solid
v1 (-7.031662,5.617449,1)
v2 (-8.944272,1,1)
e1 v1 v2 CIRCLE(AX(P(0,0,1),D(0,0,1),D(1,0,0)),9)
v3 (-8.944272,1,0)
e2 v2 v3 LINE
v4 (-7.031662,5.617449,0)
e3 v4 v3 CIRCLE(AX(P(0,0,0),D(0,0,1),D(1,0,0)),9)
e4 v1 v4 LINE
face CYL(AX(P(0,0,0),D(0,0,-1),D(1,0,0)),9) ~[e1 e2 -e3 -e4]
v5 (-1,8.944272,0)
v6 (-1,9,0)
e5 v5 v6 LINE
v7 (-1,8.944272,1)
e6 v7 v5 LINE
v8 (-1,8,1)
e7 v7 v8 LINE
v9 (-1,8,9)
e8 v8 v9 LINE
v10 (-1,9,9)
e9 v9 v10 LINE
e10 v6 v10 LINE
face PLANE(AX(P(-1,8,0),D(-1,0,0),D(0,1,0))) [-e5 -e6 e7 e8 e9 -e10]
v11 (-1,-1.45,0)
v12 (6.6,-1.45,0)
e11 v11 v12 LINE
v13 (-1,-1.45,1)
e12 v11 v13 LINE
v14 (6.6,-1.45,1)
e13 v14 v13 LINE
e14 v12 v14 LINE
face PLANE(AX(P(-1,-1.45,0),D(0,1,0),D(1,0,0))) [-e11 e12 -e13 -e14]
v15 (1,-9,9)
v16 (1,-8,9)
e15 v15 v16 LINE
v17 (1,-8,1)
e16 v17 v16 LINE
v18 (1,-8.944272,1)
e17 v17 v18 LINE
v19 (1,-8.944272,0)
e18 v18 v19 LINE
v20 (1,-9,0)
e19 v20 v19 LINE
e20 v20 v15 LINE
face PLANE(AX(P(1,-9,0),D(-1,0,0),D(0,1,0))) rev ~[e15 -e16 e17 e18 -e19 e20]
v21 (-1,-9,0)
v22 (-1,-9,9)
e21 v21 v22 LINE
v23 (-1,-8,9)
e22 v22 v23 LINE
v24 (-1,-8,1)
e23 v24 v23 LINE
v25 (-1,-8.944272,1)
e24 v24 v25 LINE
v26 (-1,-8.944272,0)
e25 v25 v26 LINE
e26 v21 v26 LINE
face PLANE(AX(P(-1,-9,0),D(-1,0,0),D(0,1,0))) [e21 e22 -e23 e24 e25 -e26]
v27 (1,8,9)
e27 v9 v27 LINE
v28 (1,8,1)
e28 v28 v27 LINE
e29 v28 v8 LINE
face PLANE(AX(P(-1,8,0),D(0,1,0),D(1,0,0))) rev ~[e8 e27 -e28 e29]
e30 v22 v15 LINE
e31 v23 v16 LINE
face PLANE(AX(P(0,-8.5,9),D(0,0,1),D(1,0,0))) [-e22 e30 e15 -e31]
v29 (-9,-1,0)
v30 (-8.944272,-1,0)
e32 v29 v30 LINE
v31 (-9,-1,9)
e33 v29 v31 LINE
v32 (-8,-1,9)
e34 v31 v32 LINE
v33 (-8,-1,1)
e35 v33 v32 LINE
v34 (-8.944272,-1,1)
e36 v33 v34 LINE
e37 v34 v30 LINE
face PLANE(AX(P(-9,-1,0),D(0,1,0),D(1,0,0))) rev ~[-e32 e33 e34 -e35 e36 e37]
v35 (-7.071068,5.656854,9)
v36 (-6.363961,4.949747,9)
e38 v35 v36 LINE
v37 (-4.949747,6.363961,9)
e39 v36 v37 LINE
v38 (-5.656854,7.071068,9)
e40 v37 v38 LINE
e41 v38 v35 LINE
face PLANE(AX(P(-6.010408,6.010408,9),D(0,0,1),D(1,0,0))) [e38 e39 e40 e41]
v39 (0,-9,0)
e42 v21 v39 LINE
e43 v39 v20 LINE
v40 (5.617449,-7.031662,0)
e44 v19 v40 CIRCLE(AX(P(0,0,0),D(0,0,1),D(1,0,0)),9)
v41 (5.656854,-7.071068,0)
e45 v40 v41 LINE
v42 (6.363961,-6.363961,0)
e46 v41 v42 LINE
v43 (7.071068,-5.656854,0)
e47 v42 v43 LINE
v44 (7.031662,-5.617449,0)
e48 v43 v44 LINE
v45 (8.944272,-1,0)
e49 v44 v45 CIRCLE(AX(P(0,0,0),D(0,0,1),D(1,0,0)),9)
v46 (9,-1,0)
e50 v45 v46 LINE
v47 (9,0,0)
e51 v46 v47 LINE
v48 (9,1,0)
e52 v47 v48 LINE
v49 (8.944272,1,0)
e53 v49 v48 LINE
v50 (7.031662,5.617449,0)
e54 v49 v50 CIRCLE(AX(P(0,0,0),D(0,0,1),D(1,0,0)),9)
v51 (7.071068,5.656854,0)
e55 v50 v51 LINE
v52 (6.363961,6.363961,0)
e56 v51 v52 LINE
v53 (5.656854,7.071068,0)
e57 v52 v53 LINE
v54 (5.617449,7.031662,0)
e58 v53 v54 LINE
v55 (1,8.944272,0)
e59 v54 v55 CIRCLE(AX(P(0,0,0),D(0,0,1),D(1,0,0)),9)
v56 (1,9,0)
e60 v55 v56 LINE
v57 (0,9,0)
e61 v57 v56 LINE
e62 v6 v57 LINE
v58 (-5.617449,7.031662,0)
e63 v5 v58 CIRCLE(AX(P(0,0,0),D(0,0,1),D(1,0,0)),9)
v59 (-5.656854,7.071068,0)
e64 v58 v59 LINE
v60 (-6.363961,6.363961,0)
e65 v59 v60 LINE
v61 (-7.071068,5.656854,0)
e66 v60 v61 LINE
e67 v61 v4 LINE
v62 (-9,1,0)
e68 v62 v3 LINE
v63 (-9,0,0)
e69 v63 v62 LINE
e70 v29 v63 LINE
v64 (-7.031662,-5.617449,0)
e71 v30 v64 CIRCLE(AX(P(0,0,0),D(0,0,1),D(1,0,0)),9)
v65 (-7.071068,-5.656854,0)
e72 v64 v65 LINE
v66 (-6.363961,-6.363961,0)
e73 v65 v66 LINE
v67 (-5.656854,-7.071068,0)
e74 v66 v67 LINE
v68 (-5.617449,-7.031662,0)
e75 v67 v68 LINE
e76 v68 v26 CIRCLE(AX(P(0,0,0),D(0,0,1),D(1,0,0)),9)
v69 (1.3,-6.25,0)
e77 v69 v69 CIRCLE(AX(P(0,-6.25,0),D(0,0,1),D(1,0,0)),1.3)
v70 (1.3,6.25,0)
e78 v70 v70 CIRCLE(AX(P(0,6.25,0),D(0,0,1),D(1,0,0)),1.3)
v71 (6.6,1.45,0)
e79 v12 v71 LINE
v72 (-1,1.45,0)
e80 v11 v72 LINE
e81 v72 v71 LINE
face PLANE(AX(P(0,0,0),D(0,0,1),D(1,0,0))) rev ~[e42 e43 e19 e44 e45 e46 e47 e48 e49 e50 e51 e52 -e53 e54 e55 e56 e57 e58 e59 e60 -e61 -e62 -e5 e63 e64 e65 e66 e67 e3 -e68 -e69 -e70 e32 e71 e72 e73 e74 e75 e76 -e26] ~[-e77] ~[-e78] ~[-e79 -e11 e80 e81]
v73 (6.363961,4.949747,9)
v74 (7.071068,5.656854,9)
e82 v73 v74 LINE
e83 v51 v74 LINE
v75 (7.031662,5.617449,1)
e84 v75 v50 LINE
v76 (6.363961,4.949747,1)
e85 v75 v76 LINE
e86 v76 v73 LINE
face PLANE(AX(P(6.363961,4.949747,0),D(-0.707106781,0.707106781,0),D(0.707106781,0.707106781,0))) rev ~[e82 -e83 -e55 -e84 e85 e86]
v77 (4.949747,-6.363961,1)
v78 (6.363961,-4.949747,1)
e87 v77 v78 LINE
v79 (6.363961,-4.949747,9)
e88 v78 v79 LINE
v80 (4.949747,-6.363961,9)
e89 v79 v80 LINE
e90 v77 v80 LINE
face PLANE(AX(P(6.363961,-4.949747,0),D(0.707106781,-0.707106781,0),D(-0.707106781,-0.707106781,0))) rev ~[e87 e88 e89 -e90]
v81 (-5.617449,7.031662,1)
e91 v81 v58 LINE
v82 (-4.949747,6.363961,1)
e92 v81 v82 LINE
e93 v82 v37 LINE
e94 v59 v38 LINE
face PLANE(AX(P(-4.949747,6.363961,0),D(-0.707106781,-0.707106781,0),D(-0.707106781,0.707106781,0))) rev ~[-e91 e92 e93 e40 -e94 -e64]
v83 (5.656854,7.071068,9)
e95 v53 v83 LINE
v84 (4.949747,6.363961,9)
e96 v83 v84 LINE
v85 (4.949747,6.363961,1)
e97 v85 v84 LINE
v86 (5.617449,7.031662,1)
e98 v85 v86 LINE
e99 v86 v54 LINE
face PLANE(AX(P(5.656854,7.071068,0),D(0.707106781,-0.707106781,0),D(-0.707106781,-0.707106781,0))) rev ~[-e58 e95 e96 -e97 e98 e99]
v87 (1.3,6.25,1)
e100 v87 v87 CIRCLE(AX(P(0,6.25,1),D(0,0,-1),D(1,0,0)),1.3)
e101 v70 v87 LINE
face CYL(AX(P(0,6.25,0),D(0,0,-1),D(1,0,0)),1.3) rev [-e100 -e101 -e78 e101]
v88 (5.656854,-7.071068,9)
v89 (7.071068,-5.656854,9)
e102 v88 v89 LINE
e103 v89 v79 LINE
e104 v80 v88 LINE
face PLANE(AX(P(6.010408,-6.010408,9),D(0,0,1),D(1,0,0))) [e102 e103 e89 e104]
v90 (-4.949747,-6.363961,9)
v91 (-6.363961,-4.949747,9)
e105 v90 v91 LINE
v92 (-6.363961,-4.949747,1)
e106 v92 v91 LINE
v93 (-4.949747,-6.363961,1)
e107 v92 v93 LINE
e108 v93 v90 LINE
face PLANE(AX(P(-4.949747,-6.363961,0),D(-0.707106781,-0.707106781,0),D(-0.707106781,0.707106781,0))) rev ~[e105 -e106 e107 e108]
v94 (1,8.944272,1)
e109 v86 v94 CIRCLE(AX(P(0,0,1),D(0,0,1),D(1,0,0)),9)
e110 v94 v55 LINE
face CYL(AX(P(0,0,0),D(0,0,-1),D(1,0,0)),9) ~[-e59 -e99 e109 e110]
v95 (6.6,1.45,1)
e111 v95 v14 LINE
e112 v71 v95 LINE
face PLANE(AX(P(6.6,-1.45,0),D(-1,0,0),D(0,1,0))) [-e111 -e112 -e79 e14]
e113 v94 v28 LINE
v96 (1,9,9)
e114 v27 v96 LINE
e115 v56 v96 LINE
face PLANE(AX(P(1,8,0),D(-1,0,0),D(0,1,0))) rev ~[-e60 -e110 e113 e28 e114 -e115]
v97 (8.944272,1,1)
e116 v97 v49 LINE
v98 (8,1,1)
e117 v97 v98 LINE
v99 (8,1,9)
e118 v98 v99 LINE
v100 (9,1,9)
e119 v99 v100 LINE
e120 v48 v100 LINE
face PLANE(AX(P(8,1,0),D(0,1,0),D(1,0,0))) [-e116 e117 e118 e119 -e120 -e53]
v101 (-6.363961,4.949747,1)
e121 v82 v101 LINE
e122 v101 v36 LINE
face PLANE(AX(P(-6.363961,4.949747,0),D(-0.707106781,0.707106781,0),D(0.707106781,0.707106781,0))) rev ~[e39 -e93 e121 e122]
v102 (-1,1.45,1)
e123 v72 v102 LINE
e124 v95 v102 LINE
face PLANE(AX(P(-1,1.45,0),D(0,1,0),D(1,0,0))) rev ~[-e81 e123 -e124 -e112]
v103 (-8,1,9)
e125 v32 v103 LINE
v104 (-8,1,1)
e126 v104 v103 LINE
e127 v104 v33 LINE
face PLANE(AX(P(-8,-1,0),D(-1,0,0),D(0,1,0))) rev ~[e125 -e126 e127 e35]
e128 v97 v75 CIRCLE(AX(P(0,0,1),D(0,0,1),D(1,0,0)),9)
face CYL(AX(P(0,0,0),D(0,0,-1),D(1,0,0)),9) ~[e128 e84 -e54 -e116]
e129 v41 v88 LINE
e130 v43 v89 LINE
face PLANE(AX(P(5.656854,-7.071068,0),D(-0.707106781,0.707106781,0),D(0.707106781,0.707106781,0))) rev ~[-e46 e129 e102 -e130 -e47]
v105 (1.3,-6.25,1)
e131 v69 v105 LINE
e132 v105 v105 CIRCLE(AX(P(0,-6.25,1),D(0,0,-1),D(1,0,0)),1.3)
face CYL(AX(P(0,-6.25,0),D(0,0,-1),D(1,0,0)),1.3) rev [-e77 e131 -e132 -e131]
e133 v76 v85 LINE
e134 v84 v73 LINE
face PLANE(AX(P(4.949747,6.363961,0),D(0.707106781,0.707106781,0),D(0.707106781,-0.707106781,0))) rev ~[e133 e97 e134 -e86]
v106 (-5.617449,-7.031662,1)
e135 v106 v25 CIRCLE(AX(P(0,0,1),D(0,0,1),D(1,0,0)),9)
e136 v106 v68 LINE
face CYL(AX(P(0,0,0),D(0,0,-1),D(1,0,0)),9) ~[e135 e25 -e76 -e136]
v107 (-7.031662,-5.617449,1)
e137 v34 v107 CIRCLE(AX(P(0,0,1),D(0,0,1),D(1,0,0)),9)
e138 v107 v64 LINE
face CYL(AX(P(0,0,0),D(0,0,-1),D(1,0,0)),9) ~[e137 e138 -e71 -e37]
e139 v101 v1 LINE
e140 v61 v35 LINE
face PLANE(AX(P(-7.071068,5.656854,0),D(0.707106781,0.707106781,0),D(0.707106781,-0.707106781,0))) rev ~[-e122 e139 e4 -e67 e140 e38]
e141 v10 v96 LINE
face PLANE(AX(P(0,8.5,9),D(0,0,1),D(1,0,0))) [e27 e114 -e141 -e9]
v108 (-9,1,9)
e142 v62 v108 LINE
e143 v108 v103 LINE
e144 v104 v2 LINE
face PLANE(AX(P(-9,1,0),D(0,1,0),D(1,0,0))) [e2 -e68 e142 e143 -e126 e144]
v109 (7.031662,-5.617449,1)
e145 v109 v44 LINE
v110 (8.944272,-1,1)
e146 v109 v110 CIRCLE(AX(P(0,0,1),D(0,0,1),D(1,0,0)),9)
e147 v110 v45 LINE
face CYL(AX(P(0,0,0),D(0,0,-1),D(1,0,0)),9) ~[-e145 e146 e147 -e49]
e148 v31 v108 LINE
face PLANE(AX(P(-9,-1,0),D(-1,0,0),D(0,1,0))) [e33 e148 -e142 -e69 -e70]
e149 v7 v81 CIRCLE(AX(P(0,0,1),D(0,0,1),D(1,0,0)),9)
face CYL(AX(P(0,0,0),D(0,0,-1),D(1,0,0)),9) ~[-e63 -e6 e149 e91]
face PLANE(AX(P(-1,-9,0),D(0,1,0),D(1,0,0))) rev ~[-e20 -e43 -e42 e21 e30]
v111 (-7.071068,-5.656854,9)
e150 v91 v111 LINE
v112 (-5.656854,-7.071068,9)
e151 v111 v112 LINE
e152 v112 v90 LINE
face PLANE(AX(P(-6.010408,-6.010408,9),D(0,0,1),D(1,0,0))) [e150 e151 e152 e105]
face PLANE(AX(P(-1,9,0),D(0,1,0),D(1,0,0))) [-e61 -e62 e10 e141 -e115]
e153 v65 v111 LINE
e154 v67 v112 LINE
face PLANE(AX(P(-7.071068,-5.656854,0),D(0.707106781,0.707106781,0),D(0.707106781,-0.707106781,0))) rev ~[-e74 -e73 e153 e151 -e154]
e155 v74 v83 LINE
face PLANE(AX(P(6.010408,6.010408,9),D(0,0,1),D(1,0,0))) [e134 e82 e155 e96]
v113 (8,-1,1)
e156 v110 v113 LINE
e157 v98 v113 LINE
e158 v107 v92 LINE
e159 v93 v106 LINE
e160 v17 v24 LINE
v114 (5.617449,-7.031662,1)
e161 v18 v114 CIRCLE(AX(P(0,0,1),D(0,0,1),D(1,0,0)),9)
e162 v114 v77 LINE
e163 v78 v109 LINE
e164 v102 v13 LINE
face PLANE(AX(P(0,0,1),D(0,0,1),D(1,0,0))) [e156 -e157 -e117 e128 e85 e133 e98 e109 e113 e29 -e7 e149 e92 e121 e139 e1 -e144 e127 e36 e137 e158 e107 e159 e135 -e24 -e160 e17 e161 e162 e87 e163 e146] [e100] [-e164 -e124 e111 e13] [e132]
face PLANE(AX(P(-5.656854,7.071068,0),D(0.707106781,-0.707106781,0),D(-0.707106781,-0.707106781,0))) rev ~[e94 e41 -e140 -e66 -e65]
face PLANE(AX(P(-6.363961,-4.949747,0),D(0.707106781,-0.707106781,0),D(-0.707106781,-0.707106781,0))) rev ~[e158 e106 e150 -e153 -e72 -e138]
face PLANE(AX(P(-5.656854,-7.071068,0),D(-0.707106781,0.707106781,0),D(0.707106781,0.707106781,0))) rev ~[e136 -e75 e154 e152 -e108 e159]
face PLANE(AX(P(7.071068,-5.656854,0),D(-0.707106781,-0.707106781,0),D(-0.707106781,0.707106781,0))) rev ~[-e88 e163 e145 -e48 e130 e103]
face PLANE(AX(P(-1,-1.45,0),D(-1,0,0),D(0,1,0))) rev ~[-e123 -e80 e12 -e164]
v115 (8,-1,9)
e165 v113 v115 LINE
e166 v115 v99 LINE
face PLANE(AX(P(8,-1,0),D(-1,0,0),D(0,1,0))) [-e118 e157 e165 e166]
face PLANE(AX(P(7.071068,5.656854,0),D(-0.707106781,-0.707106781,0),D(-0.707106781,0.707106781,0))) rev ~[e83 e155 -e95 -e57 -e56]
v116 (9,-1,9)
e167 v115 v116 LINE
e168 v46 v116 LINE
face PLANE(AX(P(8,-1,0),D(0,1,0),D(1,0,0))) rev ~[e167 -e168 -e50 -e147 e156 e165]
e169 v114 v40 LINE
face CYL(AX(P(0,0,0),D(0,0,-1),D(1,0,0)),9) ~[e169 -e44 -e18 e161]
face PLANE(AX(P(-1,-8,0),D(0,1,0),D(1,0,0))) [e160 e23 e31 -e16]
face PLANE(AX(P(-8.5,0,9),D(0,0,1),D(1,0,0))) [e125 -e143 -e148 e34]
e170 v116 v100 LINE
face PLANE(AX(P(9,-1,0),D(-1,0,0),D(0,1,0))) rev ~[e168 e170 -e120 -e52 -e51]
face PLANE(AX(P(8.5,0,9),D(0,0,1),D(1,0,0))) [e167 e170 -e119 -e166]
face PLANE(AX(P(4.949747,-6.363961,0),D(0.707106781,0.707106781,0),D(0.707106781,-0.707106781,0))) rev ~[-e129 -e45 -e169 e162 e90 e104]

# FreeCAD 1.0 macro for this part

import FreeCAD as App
import Part
import Sketcher

V = App.Vector


def add_polygon(sketch, points):
    """Adds a closed chain of lines whose ends are joined by coincident constraints."""
    first, n = sketch.GeometryCount, len(points)
    for a, b in zip(points, points[1:] + points[:1]):
        sketch.addGeometry(Part.LineSegment(App.Vector(*a, 0), App.Vector(*b, 0)), False)
    for i in range(n):
        sketch.addConstraint(Sketcher.Constraint("Coincident", first + i, 2, first + (i + 1) % n, 1))

doc = App.newDocument("Part")
body = doc.addObject("PartDesign::Body", "Body")

# Sketch on XY plane
sketch1 = body.newObject("Sketcher::SketchObject", "Sketch")
sketch1.AttachmentSupport = (doc.getObject("XY_Plane"), [""])
sketch1.MapMode = "FlatFace"
sketch1.addGeometry(Part.Circle(V(0, 0, 0), V(0, 0, 1), 9), False)
sketch1.addConstraint([
    Sketcher.Constraint("Coincident", 0, 3, -1, 1),
    Sketcher.Constraint("Diameter", 0, 18.0),
])
pad1 = body.newObject("PartDesign::Pad", "Pad")
pad1.Profile = sketch1
pad1.Length = 1

# Sketch on XY plane
sketch2 = body.newObject("Sketcher::SketchObject", "Sketch001")
sketch2.AttachmentSupport = (doc.getObject("XY_Plane"), [""])
sketch2.MapMode = "FlatFace"
sketch2.addGeometry([
    Part.Circle(V(0, 6.2, 0), V(0, 0, 1), 1.3),
    Part.Circle(V(0, -6.2, 0), V(0, 0, 1), 1.3),
], False)
sketch2.addConstraint([
    Sketcher.Constraint("Equal", 0, 1),
    Sketcher.Constraint("Symmetric", 0, 3, 1, 3, -1, 1),
    Sketcher.Constraint("PointOnObject", 0, 3, -2),
    Sketcher.Constraint("Diameter", 0, 2.6),
    Sketcher.Constraint("DistanceY", 1, 3, 0, 3, 12.5),
])
pocket1 = body.newObject("PartDesign::Pocket", "Pocket")
pocket1.Profile = sketch2
pocket1.Type = "ThroughAll"
pocket1.Reversed = True

# Sketch on XY plane
sketch3 = body.newObject("Sketcher::SketchObject", "Sketch002")
sketch3.AttachmentSupport = (doc.getObject("XY_Plane"), [""])
sketch3.MapMode = "FlatFace"
add_polygon(sketch3, [(-1, 1.4), (-1, -1.4), (6.6, -1.4), (6.6, 1.4)])  # lines 0-3
sketch3.addConstraint([
    Sketcher.Constraint("Vertical", 0),
    Sketcher.Constraint("Horizontal", 1),
    Sketcher.Constraint("Vertical", 2),
    Sketcher.Constraint("Horizontal", 3),
    Sketcher.Constraint("DistanceX", 1, 1, 1, 2, 7.6),
    Sketcher.Constraint("DistanceY", 0, 2, 0, 1, 2.9),
    Sketcher.Constraint("DistanceX", 0, 2, -1, 1, 1.0),
    Sketcher.Constraint("DistanceY", 0, 2, -1, 1, 1.45),
])
pocket2 = body.newObject("PartDesign::Pocket", "Pocket001")
pocket2.Profile = sketch3
pocket2.Type = "ThroughAll"
pocket2.Reversed = True

# Sketch on XY plane
sketch4 = body.newObject("Sketcher::SketchObject", "Sketch003")
sketch4.AttachmentSupport = (doc.getObject("XY_Plane"), [""])
sketch4.MapMode = "FlatFace"
add_polygon(sketch4, [(-6.4, 4.9), (-4.9, 6.4), (-5.7, 7.1), (-7.1, 5.7)])  # lines 0-3
add_polygon(sketch4, [(-9, 1), (-9, -1), (-8, -1), (-8, 1)])  # lines 4-7
add_polygon(sketch4, [(-1, 9), (-1, 8), (1, 8), (1, 9)])  # lines 8-11
add_polygon(sketch4, [(4.9, 6.4), (6.4, 4.9), (7.1, 5.7), (5.7, 7.1)])  # lines 12-15
add_polygon(sketch4, [(8, 1), (8, -1), (9, -1), (9, 1)])  # lines 16-19
add_polygon(sketch4, [(6.4, -4.9), (4.9, -6.4), (5.7, -7.1), (7.1, -5.7)])  # lines 20-23
add_polygon(sketch4, [(-1, -8), (-1, -9), (1, -9), (1, -8)])  # lines 24-27
add_polygon(sketch4, [(-4.9, -6.4), (-6.4, -4.9), (-7.1, -5.7), (-5.7, -7.1)])  # lines 28-31
sketch4.addConstraint([
    Sketcher.Constraint("Vertical", 4),
    Sketcher.Constraint("Horizontal", 5),
    Sketcher.Constraint("Vertical", 6),
    Sketcher.Constraint("Horizontal", 7),
    Sketcher.Constraint("Vertical", 8),
    Sketcher.Constraint("Horizontal", 9),
    Sketcher.Constraint("Vertical", 10),
    Sketcher.Constraint("Horizontal", 11),
    Sketcher.Constraint("Vertical", 16),
    Sketcher.Constraint("Horizontal", 17),
    Sketcher.Constraint("Vertical", 18),
    Sketcher.Constraint("Horizontal", 19),
    Sketcher.Constraint("Vertical", 24),
    Sketcher.Constraint("Horizontal", 25),
    Sketcher.Constraint("Vertical", 26),
    Sketcher.Constraint("Horizontal", 27),
    Sketcher.Constraint("Symmetric", 6, 2, 16, 2, -1, 1),
    Sketcher.Constraint("Symmetric", 4, 2, 18, 2, -1, 1),
    Sketcher.Constraint("Symmetric", 0, 2, 20, 2, -1, 1),
    Sketcher.Constraint("Symmetric", 1, 2, 21, 2, -1, 1),
    Sketcher.Constraint("Symmetric", 2, 2, 22, 2, -1, 1),
    Sketcher.Constraint("Symmetric", 3, 2, 23, 2, -1, 1),
    Sketcher.Constraint("Symmetric", 10, 2, 24, 2, -1, 1),
    Sketcher.Constraint("Symmetric", 8, 2, 26, 2, -1, 1),
    Sketcher.Constraint("Symmetric", 12, 2, 28, 2, -1, 1),
    Sketcher.Constraint("Symmetric", 13, 2, 29, 2, -1, 1),
    Sketcher.Constraint("Symmetric", 14, 2, 30, 2, -1, 1),
    Sketcher.Constraint("Symmetric", 15, 2, 31, 2, -1, 1),
    Sketcher.Constraint("Symmetric", 3, 2, 12, 2, -2),
    Sketcher.Constraint("Symmetric", 2, 2, 13, 2, -2),
    Sketcher.Constraint("Symmetric", 1, 2, 14, 2, -2),
    Sketcher.Constraint("Symmetric", 0, 2, 15, 2, -2),
    Sketcher.Constraint("Perpendicular", 0, 1),
    Sketcher.Constraint("Perpendicular", 1, 2),
    Sketcher.Constraint("Perpendicular", 2, 3),
    Sketcher.Constraint("Parallel", 3, 12),
    Sketcher.Constraint("Horizontal", 5, 2, 16, 2),
    Sketcher.Constraint("Vertical", 11, 2, 24, 2),
    Sketcher.Constraint("Equal", 27, 4),
    Sketcher.Constraint("Equal", 19, 8),
    Sketcher.Constraint("DistanceX", 5, 1, 5, 2, 1.0),
    Sketcher.Constraint("DistanceX", 9, 1, 9, 2, 2.0),
    Sketcher.Constraint("Distance", 0, 2.0),
    Sketcher.Constraint("Distance", 1, 1.0),
    Sketcher.Constraint("DistanceX", 4, 2, -1, 1, 9.0),
    Sketcher.Constraint("DistanceY", -1, 1, 8, 2, 8.0),
    Sketcher.Constraint("DistanceY", -1, 1, 0, 2, 6.363961),
    Sketcher.Constraint("DistanceX", 3, 2, -1, 1, 6.363961),
])
pad2 = body.newObject("PartDesign::Pad", "Pad001")
pad2.Profile = sketch4
pad2.Length = 9

doc.recompute()
